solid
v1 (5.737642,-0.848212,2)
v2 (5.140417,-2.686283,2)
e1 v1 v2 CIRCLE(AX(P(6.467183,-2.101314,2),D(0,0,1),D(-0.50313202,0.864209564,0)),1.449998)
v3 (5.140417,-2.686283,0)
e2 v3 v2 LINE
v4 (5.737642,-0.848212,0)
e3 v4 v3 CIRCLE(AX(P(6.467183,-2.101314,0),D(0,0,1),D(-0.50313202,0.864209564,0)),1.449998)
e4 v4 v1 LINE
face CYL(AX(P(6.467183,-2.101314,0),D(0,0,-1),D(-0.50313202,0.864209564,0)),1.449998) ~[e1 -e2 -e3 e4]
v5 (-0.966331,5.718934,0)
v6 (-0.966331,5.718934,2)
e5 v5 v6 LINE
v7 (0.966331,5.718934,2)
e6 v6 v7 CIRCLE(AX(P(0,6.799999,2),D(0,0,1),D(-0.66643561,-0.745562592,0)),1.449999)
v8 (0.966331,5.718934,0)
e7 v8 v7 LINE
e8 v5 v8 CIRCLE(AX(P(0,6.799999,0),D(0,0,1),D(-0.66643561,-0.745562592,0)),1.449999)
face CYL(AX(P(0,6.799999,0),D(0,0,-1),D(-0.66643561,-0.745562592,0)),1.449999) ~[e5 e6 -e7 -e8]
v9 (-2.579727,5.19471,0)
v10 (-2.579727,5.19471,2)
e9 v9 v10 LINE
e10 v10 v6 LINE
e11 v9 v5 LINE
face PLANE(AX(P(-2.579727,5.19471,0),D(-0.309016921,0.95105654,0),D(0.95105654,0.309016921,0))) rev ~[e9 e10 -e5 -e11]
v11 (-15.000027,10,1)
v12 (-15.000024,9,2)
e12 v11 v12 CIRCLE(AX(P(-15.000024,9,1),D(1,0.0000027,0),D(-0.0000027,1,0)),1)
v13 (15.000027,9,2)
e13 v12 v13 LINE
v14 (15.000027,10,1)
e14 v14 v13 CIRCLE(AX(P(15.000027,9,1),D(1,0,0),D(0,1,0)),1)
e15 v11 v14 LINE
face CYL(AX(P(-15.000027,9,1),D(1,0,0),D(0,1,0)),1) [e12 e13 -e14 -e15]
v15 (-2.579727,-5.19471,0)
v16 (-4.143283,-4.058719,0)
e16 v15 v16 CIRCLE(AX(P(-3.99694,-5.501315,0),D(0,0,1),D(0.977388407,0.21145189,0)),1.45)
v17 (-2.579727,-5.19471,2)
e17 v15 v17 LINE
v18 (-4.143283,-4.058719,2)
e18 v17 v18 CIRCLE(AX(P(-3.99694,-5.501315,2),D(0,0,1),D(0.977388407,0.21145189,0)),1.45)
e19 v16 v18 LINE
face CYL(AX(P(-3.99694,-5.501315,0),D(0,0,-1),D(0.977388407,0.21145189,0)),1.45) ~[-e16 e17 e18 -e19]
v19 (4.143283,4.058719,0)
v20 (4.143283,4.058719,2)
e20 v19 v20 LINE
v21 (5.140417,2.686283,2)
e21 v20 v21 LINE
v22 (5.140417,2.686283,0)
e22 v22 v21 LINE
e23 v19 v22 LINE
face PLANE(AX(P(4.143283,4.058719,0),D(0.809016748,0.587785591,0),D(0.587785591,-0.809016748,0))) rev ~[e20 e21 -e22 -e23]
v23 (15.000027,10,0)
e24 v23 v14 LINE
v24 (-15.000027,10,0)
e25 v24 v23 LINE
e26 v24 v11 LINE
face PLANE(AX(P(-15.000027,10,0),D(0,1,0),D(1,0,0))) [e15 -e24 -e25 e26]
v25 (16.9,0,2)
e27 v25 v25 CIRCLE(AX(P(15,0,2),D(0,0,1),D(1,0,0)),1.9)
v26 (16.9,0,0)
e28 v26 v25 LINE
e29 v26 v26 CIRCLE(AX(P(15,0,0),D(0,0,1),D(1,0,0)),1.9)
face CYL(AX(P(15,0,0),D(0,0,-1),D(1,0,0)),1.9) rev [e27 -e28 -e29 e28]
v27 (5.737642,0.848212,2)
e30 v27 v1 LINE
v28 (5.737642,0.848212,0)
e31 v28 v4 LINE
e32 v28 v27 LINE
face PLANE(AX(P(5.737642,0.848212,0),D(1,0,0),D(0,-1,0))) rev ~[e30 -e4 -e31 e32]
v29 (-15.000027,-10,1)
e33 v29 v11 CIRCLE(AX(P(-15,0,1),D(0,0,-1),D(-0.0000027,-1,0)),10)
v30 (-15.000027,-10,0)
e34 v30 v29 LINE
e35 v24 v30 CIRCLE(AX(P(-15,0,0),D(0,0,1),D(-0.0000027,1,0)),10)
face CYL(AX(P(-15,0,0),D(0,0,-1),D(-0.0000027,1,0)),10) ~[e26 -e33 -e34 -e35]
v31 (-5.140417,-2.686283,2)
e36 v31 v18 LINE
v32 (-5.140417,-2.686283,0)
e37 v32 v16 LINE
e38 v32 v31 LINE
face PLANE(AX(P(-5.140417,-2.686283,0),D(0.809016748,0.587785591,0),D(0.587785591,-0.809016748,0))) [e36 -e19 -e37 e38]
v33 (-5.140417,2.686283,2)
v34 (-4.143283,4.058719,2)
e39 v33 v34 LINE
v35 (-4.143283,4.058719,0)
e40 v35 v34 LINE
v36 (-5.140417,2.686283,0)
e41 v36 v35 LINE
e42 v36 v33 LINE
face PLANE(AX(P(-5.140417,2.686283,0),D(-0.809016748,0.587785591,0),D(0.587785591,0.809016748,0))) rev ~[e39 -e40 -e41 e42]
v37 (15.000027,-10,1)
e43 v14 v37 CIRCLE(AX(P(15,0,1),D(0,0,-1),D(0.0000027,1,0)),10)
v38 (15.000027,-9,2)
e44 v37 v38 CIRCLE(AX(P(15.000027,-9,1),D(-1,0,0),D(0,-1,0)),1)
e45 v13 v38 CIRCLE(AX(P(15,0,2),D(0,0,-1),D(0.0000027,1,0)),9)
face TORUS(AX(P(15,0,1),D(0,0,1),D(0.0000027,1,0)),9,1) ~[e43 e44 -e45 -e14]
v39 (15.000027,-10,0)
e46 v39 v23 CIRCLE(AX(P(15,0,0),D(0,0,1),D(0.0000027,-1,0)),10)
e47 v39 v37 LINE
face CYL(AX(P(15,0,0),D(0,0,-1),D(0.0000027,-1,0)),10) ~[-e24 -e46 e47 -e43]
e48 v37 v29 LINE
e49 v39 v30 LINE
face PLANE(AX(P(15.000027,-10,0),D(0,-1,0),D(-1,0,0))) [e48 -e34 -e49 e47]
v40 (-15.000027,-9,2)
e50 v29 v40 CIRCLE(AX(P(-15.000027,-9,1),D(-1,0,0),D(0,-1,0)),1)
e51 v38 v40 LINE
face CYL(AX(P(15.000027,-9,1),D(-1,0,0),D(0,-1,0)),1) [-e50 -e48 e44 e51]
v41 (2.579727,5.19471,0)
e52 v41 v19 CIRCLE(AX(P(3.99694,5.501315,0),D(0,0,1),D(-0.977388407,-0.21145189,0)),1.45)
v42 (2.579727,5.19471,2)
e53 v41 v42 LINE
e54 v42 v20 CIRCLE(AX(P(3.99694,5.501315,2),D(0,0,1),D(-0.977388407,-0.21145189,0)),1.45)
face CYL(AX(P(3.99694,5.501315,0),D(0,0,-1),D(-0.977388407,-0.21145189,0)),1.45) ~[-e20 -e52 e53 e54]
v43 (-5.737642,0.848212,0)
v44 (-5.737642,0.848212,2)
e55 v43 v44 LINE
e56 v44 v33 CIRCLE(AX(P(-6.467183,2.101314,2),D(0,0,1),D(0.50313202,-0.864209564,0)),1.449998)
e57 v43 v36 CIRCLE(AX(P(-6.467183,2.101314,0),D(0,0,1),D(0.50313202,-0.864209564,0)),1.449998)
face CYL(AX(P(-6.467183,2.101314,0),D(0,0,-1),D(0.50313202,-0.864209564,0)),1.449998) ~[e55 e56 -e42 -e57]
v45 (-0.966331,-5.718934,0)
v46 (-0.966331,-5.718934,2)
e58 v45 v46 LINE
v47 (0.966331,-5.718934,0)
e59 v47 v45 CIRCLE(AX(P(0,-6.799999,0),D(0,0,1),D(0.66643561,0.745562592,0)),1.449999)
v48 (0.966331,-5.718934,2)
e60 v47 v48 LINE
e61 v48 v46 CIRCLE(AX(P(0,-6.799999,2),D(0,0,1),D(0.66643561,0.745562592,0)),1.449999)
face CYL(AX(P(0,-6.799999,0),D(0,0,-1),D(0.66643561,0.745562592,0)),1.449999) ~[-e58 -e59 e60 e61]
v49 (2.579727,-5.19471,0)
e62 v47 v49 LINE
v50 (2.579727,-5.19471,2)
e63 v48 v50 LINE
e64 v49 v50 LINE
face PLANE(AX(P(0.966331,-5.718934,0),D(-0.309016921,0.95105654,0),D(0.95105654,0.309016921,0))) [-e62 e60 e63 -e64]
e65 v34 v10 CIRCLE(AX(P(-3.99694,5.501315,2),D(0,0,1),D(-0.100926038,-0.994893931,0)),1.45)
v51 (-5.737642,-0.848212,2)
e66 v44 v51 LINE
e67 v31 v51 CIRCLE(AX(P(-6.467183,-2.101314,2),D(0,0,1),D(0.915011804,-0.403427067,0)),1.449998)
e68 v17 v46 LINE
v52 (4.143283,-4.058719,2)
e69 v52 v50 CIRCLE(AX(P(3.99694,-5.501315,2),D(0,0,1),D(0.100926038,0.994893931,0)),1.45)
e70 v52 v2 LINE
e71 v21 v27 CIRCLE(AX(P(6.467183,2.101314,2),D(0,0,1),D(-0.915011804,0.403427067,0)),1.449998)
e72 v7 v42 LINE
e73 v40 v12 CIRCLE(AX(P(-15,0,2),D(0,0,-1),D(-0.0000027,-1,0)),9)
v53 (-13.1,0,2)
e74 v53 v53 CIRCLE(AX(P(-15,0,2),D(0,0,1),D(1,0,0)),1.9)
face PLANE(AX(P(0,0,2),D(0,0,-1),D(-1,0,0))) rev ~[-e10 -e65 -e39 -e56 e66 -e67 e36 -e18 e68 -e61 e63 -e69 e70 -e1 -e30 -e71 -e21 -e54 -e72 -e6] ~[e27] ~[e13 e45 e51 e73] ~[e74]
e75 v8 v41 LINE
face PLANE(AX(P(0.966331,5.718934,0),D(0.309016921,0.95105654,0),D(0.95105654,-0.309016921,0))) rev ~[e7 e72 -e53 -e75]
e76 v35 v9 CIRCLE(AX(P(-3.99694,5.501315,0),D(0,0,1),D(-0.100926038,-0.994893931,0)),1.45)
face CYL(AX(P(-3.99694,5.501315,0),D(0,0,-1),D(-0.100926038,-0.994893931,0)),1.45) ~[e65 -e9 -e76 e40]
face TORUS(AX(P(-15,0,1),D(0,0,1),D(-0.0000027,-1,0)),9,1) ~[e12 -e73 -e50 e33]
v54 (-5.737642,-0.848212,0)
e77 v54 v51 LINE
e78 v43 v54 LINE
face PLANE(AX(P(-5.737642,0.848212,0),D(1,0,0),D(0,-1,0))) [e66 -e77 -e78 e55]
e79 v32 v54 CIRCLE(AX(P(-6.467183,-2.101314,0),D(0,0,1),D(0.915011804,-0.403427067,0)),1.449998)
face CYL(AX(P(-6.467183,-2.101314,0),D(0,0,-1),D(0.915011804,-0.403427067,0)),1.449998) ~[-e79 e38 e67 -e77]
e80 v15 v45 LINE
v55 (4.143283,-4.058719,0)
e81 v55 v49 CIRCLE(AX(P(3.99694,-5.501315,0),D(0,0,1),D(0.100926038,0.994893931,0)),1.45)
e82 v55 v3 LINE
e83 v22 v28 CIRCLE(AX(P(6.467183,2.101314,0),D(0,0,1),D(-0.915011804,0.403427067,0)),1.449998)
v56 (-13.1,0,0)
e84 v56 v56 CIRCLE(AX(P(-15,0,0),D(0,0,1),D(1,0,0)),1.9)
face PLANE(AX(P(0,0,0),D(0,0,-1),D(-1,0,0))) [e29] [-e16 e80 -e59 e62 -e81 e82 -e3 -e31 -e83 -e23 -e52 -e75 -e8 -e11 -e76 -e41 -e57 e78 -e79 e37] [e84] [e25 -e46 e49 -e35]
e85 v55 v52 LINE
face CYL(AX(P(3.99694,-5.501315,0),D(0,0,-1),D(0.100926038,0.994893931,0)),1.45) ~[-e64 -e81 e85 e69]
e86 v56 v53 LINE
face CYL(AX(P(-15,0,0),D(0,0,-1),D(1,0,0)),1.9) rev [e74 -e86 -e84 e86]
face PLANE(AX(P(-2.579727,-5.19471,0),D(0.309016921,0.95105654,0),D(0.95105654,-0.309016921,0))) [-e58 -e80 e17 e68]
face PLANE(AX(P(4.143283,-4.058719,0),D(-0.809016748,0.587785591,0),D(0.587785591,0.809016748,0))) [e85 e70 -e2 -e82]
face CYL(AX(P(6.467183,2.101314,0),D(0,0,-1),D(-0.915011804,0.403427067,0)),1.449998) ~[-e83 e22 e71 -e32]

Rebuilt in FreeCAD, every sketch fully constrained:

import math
import FreeCAD as App
import Part
import Sketcher
Q = App.Units.Quantity


def edges_at(feature, points):
    """Names of the edges that pass closest to the given points."""
    edges = feature.Shape.Edges
    near = lambda p: min(range(len(edges)), key=lambda i: edges[i].distToShape(Part.Vertex(*p))[0])
    return sorted({f"Edge{near(p) + 1}" for p in points})

doc = App.newDocument("Part")
body = doc.addObject("PartDesign::Body", "Body")

# Sketch on XY plane
sketch1 = body.newObject("Sketcher::SketchObject", "Sketch")
sketch1.AttachmentSupport = (doc.getObject("XY_Plane"), [""])
sketch1.MapMode = "FlatFace"
sketch1.addGeometry([
    Part.LineSegment(App.Vector(15, 10, 0), App.Vector(-15, 10, 0)),  # 0
    Part.ArcOfCircle(Part.Circle(App.Vector(-15, 0, 0), App.Vector(0, 0, 1), 10), math.radians(90), math.radians(270)),  # 1
    Part.LineSegment(App.Vector(-15, -10, 0), App.Vector(15, -10, 0)),  # 2
    Part.ArcOfCircle(Part.Circle(App.Vector(15, 0, 0), App.Vector(0, 0, 1), 10), math.radians(-90), math.radians(90)),  # 3
    Part.Circle(App.Vector(15, 0, 0), App.Vector(0, 0, 1), 1.9),  # 4
    Part.ArcOfCircle(Part.Circle(App.Vector(0, 6.8, 0), App.Vector(0, 0, 1), 1.4), math.radians(-132), math.radians(-48)),  # 5
    Part.LineSegment(App.Vector(1, 5.7, 0), App.Vector(2.6, 5.2, 0)),  # 6
    Part.ArcOfCircle(Part.Circle(App.Vector(4, 5.5, 0), App.Vector(0, 0, 1), 1.5), math.radians(-168), math.radians(-84)),  # 7
    Part.LineSegment(App.Vector(4.1, 4.1, 0), App.Vector(5.1, 2.7, 0)),  # 8
    Part.ArcOfCircle(Part.Circle(App.Vector(6.5, 2.1, 0), App.Vector(0, 0, 1), 1.4), math.radians(156), math.radians(240)),  # 9
    Part.LineSegment(App.Vector(5.7, 0.8, 0), App.Vector(5.7, -0.8, 0)),  # 10
    Part.ArcOfCircle(Part.Circle(App.Vector(6.5, -2.1, 0), App.Vector(0, 0, 1), 1.4), math.radians(120), math.radians(204)),  # 11
    Part.LineSegment(App.Vector(5.1, -2.7, 0), App.Vector(4.1, -4.1, 0)),  # 12
    Part.ArcOfCircle(Part.Circle(App.Vector(4, -5.5, 0), App.Vector(0, 0, 1), 1.5), math.radians(84), math.radians(168)),  # 13
    Part.LineSegment(App.Vector(2.6, -5.2, 0), App.Vector(1, -5.7, 0)),  # 14
    Part.ArcOfCircle(Part.Circle(App.Vector(0, -6.8, 0), App.Vector(0, 0, 1), 1.4), math.radians(48), math.radians(132)),  # 15
    Part.LineSegment(App.Vector(-1, -5.7, 0), App.Vector(-2.6, -5.2, 0)),  # 16
    Part.ArcOfCircle(Part.Circle(App.Vector(-4, -5.5, 0), App.Vector(0, 0, 1), 1.5), math.radians(12), math.radians(96)),  # 17
    Part.LineSegment(App.Vector(-4.1, -4.1, 0), App.Vector(-5.1, -2.7, 0)),  # 18
    Part.ArcOfCircle(Part.Circle(App.Vector(-6.5, -2.1, 0), App.Vector(0, 0, 1), 1.4), math.radians(-24), math.radians(60)),  # 19
    Part.LineSegment(App.Vector(-5.7, -0.8, 0), App.Vector(-5.7, 0.8, 0)),  # 20
    Part.ArcOfCircle(Part.Circle(App.Vector(-6.5, 2.1, 0), App.Vector(0, 0, 1), 1.4), math.radians(-60), math.radians(24)),  # 21
    Part.LineSegment(App.Vector(-5.1, 2.7, 0), App.Vector(-4.1, 4.1, 0)),  # 22
    Part.ArcOfCircle(Part.Circle(App.Vector(-4, 5.5, 0), App.Vector(0, 0, 1), 1.5), math.radians(-96), math.radians(-12)),  # 23
    Part.LineSegment(App.Vector(-2.6, 5.2, 0), App.Vector(-1, 5.7, 0)),  # 24
    Part.Circle(App.Vector(-15, 0, 0), App.Vector(0, 0, 1), 1.9),  # 25
], False)
sketch1.addConstraint([
    Sketcher.Constraint("Coincident", 0, 2, 1, 1),
    Sketcher.Constraint("Coincident", 1, 2, 2, 1),
    Sketcher.Constraint("Coincident", 2, 2, 3, 1),
    Sketcher.Constraint("Coincident", 3, 2, 0, 1),
    Sketcher.Constraint("Coincident", 5, 2, 6, 1),
    Sketcher.Constraint("Coincident", 6, 2, 7, 1),
    Sketcher.Constraint("Coincident", 7, 2, 8, 1),
    Sketcher.Constraint("Coincident", 8, 2, 9, 1),
    Sketcher.Constraint("Coincident", 9, 2, 10, 1),
    Sketcher.Constraint("Coincident", 10, 2, 11, 1),
    Sketcher.Constraint("Coincident", 11, 2, 12, 1),
    Sketcher.Constraint("Coincident", 12, 2, 13, 1),
    Sketcher.Constraint("Coincident", 13, 2, 14, 1),
    Sketcher.Constraint("Coincident", 14, 2, 15, 1),
    Sketcher.Constraint("Coincident", 15, 2, 16, 1),
    Sketcher.Constraint("Coincident", 16, 2, 17, 1),
    Sketcher.Constraint("Coincident", 17, 2, 18, 1),
    Sketcher.Constraint("Coincident", 18, 2, 19, 1),
    Sketcher.Constraint("Coincident", 19, 2, 20, 1),
    Sketcher.Constraint("Coincident", 20, 2, 21, 1),
    Sketcher.Constraint("Coincident", 21, 2, 22, 1),
    Sketcher.Constraint("Coincident", 22, 2, 23, 1),
    Sketcher.Constraint("Coincident", 23, 2, 24, 1),
    Sketcher.Constraint("Coincident", 24, 2, 5, 1),
    Sketcher.Constraint("Horizontal", 0),
    Sketcher.Constraint("Horizontal", 2),
    Sketcher.Constraint("Vertical", 10),
    Sketcher.Constraint("Vertical", 20),
    Sketcher.Constraint("Coincident", 4, 3, 3, 3),
    Sketcher.Constraint("Coincident", 25, 3, 1, 3),
    Sketcher.Constraint("Equal", 5, 7),
    Sketcher.Constraint("Equal", 7, 9),
    Sketcher.Constraint("Equal", 9, 11),
    Sketcher.Constraint("Equal", 11, 13),
    Sketcher.Constraint("Equal", 13, 15),
    Sketcher.Constraint("Equal", 15, 17),
    Sketcher.Constraint("Equal", 17, 19),
    Sketcher.Constraint("Equal", 19, 21),
    Sketcher.Constraint("Equal", 21, 23),
    Sketcher.Constraint("Equal", 4, 25),
    Sketcher.Constraint("Symmetric", 1, 3, 3, 3, -1, 1),
    Sketcher.Constraint("Symmetric", 5, 3, 15, 3, -1, 1),
    Sketcher.Constraint("Symmetric", 7, 3, 17, 3, -1, 1),
    Sketcher.Constraint("Symmetric", 9, 3, 19, 3, -1, 1),
    Sketcher.Constraint("Symmetric", 11, 3, 21, 3, -1, 1),
    Sketcher.Constraint("Symmetric", 13, 3, 23, 3, -1, 1),
    Sketcher.Constraint("Symmetric", 13, 3, 17, 3, -2),
    Sketcher.Constraint("Symmetric", 11, 3, 19, 3, -2),
    Sketcher.Constraint("Symmetric", 14, 2, 15, 2, -2),
    Sketcher.Constraint("Parallel", 6, 16),
    Sketcher.Constraint("Parallel", 8, 18),
    Sketcher.Constraint("Parallel", 12, 22),
    Sketcher.Constraint("Parallel", 14, 24),
    Sketcher.Constraint("Horizontal", 13, 2, 16, 2),
    Sketcher.Constraint("Horizontal", 12, 2, 17, 2),
    Sketcher.Constraint("Horizontal", 11, 2, 18, 2),
    Sketcher.Constraint("Horizontal", 10, 2, 19, 2),
    Sketcher.Constraint("Horizontal", 8, 2, 21, 2),
    Sketcher.Constraint("Horizontal", 6, 2, 23, 2),
    Sketcher.Constraint("Vertical", 0, 2, 1, 2),
    Sketcher.Constraint("Vertical", 2, 2, 3, 2),
    Sketcher.Constraint("Vertical", 8, 2, 11, 2),
    Sketcher.Constraint("Vertical", 6, 2, 13, 2),
    Sketcher.Constraint("Equal", 6, 8),
    Sketcher.Constraint("Radius", 1, Q("10 mm")),
    Sketcher.Constraint("Diameter", 4, Q("3.8 mm")),
    Sketcher.Constraint("Angle", 6, Q("-17.999996 deg")),
    Sketcher.Constraint("Radius", 5, Q("1.449999 mm")),
    Sketcher.Constraint("DistanceX", 1, 3, -1, 1, Q("15 mm")),
    Sketcher.Constraint("DistanceY", -1, 1, 5, 3, Q("6.799999 mm")),
    Sketcher.Constraint("DistanceY", 9, 3, 7, 3, Q("3.400001 mm")),
    Sketcher.Constraint("DistanceX", 7, 2, 9, 3, Q("2.3239 mm")),
    Sketcher.Constraint("DistanceX", 7, 3, 9, 2, Q("1.740702 mm")),
    Sketcher.Constraint("DistanceX", 0, 2, 0, 1, Q("30.000054 mm")),
    Sketcher.Constraint("DistanceY", 10, 2, 10, 1, Q("1.696424 mm")),
    Sketcher.Constraint("DistanceX", -1, 1, 7, 3, Q("3.99694 mm")),
    Sketcher.Constraint("DistanceX", -1, 1, 5, 2, Q("0.966331 mm")),
    Sketcher.Constraint("DistanceY", -1, 1, 6, 2, Q("5.19471 mm")),
    Sketcher.Constraint("DistanceX", 0, 2, -1, 1, Q("15.000027 mm")),
])
pad1 = body.newObject("PartDesign::Pad", "Pad")
pad1.Profile = sketch1
pad1.Length = 2
doc.recompute()

fillet = body.newObject("PartDesign::Fillet", "Fillet")
fillet.Base = (pad1, edges_at(pad1, [
    (0, -10, 2),
    (-25, 0, 2),
    (0, 10, 2),
    (25, 0, 2),
]))
fillet.Radius = 1

doc.recompute()
